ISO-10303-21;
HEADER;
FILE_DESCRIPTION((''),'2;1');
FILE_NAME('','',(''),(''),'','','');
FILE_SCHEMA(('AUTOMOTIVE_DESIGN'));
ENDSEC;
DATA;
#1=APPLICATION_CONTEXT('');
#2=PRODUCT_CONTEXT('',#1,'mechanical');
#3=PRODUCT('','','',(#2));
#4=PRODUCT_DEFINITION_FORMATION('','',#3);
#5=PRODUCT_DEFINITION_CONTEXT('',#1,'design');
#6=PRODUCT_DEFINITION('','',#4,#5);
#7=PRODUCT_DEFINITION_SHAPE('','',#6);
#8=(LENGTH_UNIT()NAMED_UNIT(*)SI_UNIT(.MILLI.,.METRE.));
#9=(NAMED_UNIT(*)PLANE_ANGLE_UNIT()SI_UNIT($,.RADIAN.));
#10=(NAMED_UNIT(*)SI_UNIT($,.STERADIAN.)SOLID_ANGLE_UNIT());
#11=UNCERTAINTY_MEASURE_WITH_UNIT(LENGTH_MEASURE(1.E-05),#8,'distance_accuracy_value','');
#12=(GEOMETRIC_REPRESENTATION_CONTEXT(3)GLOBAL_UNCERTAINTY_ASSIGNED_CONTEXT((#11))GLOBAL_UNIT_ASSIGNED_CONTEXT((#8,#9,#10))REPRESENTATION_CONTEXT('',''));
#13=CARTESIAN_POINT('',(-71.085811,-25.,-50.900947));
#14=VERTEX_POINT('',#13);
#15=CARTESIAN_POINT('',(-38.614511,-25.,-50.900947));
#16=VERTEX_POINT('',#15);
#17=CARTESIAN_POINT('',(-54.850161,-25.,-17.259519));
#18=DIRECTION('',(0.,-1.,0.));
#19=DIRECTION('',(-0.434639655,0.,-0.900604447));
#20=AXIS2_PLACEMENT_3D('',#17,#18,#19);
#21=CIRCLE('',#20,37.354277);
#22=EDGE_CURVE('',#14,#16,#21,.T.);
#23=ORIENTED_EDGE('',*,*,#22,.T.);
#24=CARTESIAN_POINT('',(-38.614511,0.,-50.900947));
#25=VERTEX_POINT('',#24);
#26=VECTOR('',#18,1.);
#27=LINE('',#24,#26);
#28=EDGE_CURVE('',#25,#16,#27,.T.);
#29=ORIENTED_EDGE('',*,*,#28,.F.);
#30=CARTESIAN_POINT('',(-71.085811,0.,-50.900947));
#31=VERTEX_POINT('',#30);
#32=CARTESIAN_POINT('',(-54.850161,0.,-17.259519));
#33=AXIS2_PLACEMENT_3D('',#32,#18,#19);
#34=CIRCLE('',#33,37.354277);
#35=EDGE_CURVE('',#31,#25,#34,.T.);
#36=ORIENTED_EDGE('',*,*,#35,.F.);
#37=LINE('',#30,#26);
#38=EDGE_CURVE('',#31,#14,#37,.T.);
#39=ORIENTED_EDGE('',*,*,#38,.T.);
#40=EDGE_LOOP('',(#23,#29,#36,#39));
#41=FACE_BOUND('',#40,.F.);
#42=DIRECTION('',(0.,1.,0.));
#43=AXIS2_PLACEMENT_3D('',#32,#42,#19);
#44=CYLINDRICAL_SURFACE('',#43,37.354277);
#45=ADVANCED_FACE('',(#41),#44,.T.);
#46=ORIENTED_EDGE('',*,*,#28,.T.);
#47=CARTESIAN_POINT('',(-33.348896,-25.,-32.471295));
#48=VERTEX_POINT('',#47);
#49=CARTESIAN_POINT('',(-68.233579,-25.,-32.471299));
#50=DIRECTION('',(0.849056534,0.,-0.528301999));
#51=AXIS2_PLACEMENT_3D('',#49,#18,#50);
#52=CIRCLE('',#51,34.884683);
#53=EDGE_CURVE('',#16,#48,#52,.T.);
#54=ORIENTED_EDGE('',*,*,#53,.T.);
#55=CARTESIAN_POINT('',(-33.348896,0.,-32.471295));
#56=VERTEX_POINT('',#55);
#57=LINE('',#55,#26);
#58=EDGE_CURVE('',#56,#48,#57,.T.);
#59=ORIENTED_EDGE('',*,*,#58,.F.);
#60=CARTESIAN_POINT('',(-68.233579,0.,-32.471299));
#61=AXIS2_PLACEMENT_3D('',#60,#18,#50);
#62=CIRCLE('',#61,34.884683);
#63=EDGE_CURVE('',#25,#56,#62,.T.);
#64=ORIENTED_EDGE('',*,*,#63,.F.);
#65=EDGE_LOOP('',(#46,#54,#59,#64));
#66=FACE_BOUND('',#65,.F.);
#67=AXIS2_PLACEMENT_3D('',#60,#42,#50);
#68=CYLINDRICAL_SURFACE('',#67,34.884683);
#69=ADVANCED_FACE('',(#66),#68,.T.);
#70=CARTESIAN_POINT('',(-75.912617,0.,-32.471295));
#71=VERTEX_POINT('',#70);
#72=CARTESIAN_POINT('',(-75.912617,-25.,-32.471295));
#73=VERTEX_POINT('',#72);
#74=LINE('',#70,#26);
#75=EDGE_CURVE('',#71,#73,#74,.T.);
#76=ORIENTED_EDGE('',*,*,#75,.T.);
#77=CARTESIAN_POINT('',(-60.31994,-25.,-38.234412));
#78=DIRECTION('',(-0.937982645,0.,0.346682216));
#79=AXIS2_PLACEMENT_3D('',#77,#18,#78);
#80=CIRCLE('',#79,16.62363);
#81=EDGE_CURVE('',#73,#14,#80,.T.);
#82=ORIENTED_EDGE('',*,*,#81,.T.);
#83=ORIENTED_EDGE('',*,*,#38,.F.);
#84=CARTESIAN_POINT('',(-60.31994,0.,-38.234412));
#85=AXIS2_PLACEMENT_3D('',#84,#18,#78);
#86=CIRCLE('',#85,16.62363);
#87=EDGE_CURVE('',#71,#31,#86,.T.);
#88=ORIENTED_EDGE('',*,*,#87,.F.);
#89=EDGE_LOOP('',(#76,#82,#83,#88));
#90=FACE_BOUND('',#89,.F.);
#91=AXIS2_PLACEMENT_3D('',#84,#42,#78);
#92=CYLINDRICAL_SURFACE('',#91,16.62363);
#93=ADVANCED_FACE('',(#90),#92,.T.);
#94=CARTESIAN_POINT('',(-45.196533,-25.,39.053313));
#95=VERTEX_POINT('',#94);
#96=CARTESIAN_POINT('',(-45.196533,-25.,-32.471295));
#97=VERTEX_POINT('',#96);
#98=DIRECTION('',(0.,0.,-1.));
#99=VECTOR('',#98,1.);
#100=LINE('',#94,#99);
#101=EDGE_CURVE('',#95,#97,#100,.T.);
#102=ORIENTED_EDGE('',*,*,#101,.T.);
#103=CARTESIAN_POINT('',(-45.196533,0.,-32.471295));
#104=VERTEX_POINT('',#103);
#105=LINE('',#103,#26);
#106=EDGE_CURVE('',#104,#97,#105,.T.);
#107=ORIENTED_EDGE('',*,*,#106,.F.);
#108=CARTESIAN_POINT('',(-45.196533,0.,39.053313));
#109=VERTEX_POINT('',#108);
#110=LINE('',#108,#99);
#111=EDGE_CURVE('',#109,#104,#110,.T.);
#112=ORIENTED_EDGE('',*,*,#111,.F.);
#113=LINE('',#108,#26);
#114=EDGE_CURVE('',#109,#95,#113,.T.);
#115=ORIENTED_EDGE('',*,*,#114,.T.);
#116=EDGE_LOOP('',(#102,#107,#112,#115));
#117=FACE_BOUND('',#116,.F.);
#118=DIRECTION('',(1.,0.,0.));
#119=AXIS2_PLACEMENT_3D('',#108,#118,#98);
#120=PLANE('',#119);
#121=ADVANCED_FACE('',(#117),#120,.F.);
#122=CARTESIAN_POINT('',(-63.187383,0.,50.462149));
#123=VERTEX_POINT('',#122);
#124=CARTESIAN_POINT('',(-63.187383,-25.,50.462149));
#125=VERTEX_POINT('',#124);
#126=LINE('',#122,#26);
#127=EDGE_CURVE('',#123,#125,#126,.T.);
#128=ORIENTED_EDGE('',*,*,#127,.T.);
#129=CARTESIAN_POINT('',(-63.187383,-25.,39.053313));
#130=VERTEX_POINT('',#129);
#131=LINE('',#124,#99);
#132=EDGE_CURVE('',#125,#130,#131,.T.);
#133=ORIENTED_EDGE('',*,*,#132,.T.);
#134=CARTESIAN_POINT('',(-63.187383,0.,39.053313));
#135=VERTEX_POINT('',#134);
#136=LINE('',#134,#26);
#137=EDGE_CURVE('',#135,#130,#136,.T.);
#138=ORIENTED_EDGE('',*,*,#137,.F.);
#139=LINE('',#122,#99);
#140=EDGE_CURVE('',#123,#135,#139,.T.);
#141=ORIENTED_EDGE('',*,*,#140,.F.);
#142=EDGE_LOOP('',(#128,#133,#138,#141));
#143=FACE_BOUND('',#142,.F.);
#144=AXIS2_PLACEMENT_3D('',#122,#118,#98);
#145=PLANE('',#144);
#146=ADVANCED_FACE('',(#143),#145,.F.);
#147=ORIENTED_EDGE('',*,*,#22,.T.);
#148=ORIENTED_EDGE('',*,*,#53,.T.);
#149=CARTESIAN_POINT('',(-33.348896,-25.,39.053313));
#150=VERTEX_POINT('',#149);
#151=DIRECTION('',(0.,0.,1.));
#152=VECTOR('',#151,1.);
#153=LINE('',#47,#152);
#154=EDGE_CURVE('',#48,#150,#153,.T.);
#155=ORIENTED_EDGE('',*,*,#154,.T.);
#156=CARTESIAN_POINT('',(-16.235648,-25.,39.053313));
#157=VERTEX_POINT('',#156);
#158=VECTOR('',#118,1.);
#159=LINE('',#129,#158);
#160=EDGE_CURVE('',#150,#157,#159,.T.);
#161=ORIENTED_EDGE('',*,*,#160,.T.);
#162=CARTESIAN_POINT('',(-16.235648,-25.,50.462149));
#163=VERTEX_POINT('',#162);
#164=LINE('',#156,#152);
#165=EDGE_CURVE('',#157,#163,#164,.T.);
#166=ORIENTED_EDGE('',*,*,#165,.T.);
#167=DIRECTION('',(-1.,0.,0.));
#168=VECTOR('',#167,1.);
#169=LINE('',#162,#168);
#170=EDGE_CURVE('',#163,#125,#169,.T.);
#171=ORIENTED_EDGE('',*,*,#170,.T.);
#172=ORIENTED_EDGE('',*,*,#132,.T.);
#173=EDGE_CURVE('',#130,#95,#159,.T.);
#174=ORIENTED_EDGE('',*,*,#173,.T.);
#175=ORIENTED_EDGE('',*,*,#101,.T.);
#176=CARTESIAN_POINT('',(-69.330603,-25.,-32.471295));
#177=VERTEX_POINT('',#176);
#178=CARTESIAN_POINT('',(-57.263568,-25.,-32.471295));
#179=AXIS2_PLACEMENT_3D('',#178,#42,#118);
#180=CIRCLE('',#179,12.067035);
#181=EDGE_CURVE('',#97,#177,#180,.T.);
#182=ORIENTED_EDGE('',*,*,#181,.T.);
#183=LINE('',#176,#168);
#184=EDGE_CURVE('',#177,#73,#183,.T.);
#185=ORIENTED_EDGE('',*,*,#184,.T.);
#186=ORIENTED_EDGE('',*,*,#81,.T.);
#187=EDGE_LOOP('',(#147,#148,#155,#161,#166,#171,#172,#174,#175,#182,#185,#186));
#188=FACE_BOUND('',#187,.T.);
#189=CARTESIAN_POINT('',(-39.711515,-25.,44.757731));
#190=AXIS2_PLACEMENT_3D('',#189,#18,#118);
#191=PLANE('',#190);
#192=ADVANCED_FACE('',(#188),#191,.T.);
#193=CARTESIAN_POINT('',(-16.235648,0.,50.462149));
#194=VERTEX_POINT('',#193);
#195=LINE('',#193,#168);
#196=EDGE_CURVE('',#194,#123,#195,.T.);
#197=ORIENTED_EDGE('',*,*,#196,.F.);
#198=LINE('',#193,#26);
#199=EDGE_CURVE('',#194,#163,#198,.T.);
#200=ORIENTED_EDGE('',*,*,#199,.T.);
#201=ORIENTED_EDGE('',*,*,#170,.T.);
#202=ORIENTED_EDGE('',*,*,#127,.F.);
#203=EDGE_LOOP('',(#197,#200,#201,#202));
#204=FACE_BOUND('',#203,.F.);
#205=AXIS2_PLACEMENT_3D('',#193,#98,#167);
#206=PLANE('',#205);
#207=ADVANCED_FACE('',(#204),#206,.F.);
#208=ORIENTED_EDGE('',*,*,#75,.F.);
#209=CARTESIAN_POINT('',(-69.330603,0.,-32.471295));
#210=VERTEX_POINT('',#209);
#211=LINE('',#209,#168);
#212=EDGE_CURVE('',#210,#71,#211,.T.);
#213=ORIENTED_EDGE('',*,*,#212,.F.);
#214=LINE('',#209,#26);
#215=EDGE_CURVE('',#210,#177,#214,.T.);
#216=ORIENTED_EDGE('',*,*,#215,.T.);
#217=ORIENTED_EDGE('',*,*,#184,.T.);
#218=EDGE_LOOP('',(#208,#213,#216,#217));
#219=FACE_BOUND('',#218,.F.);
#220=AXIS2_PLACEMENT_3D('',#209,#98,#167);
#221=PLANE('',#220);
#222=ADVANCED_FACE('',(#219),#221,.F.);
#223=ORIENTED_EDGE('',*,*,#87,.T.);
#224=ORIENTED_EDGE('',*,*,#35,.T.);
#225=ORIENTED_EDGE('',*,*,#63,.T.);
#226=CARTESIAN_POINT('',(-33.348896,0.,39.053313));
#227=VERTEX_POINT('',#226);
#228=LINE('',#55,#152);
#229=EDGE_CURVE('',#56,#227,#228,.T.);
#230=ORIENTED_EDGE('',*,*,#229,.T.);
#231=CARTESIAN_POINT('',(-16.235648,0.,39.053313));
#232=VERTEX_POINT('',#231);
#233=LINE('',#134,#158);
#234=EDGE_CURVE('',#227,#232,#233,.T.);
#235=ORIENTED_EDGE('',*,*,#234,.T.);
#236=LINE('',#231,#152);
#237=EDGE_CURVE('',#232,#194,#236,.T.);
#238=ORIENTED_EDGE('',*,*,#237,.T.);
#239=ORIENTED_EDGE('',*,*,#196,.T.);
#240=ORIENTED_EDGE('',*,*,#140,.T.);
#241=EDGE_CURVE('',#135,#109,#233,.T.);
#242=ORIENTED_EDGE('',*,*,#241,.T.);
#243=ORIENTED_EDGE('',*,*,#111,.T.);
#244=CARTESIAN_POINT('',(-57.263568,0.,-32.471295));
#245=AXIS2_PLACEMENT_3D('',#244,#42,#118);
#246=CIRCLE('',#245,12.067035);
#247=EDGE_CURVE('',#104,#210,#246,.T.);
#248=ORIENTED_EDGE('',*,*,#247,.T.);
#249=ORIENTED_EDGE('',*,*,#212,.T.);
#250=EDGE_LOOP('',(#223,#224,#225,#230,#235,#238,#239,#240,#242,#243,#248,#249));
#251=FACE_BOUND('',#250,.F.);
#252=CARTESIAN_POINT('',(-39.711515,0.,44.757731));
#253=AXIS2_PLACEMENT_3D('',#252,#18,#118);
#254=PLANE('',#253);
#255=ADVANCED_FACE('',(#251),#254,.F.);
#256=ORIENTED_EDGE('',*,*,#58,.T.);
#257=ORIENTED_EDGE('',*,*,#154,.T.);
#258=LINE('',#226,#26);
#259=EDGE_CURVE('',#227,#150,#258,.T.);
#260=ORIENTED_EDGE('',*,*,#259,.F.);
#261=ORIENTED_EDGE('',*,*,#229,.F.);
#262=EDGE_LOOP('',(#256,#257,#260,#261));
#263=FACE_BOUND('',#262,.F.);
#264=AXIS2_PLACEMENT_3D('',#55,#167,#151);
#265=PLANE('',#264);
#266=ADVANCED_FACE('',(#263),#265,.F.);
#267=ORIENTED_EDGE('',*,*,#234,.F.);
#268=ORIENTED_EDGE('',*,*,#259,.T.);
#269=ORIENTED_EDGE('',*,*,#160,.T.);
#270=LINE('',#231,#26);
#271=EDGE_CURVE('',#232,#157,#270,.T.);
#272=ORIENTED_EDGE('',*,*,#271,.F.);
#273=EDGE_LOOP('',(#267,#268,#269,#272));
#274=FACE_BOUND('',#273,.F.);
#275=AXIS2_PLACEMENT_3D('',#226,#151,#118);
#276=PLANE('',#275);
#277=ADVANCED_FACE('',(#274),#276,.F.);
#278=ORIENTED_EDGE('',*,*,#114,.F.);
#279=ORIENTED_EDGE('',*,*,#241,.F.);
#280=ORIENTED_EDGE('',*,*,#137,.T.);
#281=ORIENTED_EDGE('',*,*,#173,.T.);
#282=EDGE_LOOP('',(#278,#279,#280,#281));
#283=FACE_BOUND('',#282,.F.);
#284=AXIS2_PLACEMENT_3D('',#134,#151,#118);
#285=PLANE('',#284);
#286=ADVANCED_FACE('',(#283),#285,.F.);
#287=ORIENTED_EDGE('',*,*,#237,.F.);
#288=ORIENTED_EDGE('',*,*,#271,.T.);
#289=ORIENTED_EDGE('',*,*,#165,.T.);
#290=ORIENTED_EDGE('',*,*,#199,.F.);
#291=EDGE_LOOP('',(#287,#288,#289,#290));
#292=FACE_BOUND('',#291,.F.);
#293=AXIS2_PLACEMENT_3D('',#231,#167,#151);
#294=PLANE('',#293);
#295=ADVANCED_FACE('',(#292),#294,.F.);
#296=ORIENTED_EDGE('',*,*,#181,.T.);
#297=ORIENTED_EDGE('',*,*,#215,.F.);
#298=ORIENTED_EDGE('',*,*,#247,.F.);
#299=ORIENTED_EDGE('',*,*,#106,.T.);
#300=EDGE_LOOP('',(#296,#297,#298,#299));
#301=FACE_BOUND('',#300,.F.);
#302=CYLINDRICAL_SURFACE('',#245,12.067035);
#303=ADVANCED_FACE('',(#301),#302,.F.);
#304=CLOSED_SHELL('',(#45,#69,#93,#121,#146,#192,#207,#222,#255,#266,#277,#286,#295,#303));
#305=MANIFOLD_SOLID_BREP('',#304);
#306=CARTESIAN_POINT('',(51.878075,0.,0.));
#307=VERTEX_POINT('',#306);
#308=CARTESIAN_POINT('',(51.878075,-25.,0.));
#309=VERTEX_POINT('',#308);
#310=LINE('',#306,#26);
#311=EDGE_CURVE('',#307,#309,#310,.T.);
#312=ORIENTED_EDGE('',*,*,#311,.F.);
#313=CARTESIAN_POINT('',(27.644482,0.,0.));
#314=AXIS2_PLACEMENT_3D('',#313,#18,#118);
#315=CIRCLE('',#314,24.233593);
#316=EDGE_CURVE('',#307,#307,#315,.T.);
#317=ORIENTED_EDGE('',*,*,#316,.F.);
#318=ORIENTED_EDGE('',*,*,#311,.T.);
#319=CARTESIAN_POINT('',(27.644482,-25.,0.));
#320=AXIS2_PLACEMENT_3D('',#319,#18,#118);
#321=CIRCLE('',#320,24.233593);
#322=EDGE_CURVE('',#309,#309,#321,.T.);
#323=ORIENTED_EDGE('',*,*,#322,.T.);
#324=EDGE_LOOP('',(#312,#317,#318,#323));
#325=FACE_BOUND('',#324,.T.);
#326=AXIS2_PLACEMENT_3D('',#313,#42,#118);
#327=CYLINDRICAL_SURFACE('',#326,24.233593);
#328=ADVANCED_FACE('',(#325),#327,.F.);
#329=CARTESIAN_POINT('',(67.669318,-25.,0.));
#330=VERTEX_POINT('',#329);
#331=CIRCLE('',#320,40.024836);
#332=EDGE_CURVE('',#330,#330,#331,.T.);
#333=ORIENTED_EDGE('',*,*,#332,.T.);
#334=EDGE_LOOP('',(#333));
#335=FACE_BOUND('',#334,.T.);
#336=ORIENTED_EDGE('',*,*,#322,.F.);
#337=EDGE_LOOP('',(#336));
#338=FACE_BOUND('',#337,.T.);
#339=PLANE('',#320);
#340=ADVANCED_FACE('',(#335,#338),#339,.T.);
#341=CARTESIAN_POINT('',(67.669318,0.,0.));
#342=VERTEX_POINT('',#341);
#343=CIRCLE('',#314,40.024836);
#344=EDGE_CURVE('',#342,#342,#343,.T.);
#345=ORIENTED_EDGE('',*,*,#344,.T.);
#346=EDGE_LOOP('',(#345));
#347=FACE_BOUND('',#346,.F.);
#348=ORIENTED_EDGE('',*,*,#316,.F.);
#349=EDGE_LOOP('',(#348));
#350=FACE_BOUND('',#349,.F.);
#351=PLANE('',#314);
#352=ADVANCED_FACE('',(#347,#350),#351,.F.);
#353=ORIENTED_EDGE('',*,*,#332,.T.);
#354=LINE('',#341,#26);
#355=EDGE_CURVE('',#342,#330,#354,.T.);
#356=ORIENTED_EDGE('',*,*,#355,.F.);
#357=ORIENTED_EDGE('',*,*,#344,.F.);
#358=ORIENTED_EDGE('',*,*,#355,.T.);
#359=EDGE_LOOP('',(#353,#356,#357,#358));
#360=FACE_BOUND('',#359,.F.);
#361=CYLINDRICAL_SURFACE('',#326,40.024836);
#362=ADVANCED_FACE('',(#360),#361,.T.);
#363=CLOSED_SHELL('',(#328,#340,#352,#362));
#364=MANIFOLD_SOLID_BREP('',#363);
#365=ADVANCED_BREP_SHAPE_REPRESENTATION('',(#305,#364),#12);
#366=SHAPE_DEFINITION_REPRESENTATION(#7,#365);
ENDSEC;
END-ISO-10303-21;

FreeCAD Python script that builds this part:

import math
import FreeCAD as App
import Part
import Sketcher
from FreeCAD import Vector

doc = App.newDocument("Part")
body = doc.addObject("PartDesign::Body", "Body")
body.AllowCompound = True

# Sketch on XZ plane
sketch1 = body.newObject("Sketcher::SketchObject", "Sketch")
sketch1.AttachmentSupport = (doc.getObject("XZ_Plane"), [""])
sketch1.MapMode = "FlatFace"
sketch1.addGeometry(Part.LineSegment(Vector(-16, 50, 0), Vector(-63, 50, 0)), False)
sketch1.addGeometry(Part.LineSegment(Vector(-63, 50, 0), Vector(-63, 39, 0)), False)
sketch1.addGeometry(Part.LineSegment(Vector(-63, 39, 0), Vector(-45, 39, 0)), False)
sketch1.addGeometry(Part.LineSegment(Vector(-45, 39, 0), Vector(-45, -32, 0)), False)
sketch1.addGeometry(Part.ArcOfCircle(Part.Circle(Vector(-57, -32, 0), Vector(0, 0, 1), 12), math.radians(180), math.radians(360)), False)
sketch1.addGeometry(Part.LineSegment(Vector(-69, -32, 0), Vector(-76, -32, 0)), False)
sketch1.addGeometry(Part.ArcOfCircle(Part.Circle(Vector(-60, -38, 0), Vector(0, 0, 1), 17), math.radians(160), math.radians(230)), False)
sketch1.addGeometry(Part.ArcOfCircle(Part.Circle(Vector(-55, -17, 0), Vector(0, 0, 1), 37), math.radians(-116), math.radians(-64)), False)
sketch1.addGeometry(Part.ArcOfCircle(Part.Circle(Vector(-68, -32, 0), Vector(0, 0, 1), 35), math.radians(-32), math.radians(0)), False)
sketch1.addGeometry(Part.LineSegment(Vector(-33, -32, 0), Vector(-33, 39, 0)), False)
sketch1.addGeometry(Part.LineSegment(Vector(-33, 39, 0), Vector(-16, 39, 0)), False)
sketch1.addGeometry(Part.LineSegment(Vector(-16, 39, 0), Vector(-16, 50, 0)), False)
sketch1.addGeometry(Part.Circle(Vector(28, 0, 0), Vector(0, 0, 1), 40), False)
sketch1.addGeometry(Part.Circle(Vector(28, 0, 0), Vector(0, 0, 1), 24), False)
sketch1.addConstraint(Sketcher.Constraint("Coincident", 0, 2, 1, 1))
sketch1.addConstraint(Sketcher.Constraint("Coincident", 1, 2, 2, 1))
sketch1.addConstraint(Sketcher.Constraint("Coincident", 2, 2, 3, 1))
sketch1.addConstraint(Sketcher.Constraint("Tangent", 3, 2, 4, 2))
sketch1.addConstraint(Sketcher.Constraint("Coincident", 4, 1, 5, 1))
sketch1.addConstraint(Sketcher.Constraint("Coincident", 5, 2, 6, 1))
sketch1.addConstraint(Sketcher.Constraint("Coincident", 6, 2, 7, 1))
sketch1.addConstraint(Sketcher.Constraint("Coincident", 7, 2, 8, 1))
sketch1.addConstraint(Sketcher.Constraint("Tangent", 8, 2, 9, 1))
sketch1.addConstraint(Sketcher.Constraint("Coincident", 9, 2, 10, 1))
sketch1.addConstraint(Sketcher.Constraint("Coincident", 10, 2, 11, 1))
sketch1.addConstraint(Sketcher.Constraint("Coincident", 11, 2, 0, 1))
sketch1.addConstraint(Sketcher.Constraint("Horizontal", 0))
sketch1.addConstraint(Sketcher.Constraint("Vertical", 1))
sketch1.addConstraint(Sketcher.Constraint("Horizontal", 2))
sketch1.addConstraint(Sketcher.Constraint("Vertical", 3))
sketch1.addConstraint(Sketcher.Constraint("Horizontal", 5))
sketch1.addConstraint(Sketcher.Constraint("Vertical", 9))
sketch1.addConstraint(Sketcher.Constraint("Horizontal", 10))
sketch1.addConstraint(Sketcher.Constraint("Vertical", 11))
sketch1.addConstraint(Sketcher.Constraint("Coincident", 13, 3, 12, 3))
sketch1.addConstraint(Sketcher.Constraint("PointOnObject", 12, 3, -1))
sketch1.addConstraint(Sketcher.Constraint("Horizontal", 3, 2, 4, 1))
sketch1.addConstraint(Sketcher.Constraint("Horizontal", 6, 2, 7, 2))
sketch1.addConstraint(Sketcher.Constraint("Horizontal", 5, 2, 8, 2))
sketch1.addConstraint(Sketcher.Constraint("Horizontal", 2, 2, 9, 2))
sketch1.addConstraint(Sketcher.Constraint("Diameter", 12, 80.049672))
sketch1.addConstraint(Sketcher.Constraint("Radius", 6, 16.62363))
sketch1.addConstraint(Sketcher.Constraint("Diameter", 13, 48.467186))
sketch1.addConstraint(Sketcher.Constraint("Radius", 4, 12.067035))
sketch1.addConstraint(Sketcher.Constraint("Radius", 7, 37.354277))
sketch1.addConstraint(Sketcher.Constraint("Radius", 8, 34.884683))
sketch1.addConstraint(Sketcher.Constraint("DistanceX", 2, 1, 2, 2, 17.99085))
sketch1.addConstraint(Sketcher.Constraint("DistanceX", 10, 1, 10, 2, 17.113248))
sketch1.addConstraint(Sketcher.Constraint("DistanceY", 3, 2, 3, 1, 71.524608))
sketch1.addConstraint(Sketcher.Constraint("DistanceY", 8, 3, -1, 1, 32.471299))
sketch1.addConstraint(Sketcher.Constraint("DistanceX", 6, 2, 7, 2, 32.4713))
sketch1.addConstraint(Sketcher.Constraint("DistanceX", 0, 2, 0, 1, 46.951735))
sketch1.addConstraint(Sketcher.Constraint("DistanceX", 5, 2, 5, 1, 6.582014))
sketch1.addConstraint(Sketcher.Constraint("DistanceY", 1, 2, 1, 1, 11.408836))
sketch1.addConstraint(Sketcher.Constraint("DistanceX", 6, 3, -1, 1, 60.31994))
sketch1.addConstraint(Sketcher.Constraint("DistanceY", 6, 3, -1, 1, 38.234412))
sketch1.addConstraint(Sketcher.Constraint("DistanceX", -1, 1, 12, 3, 27.644482))
pad1 = body.newObject("PartDesign::Pad", "Pad")
pad1.Profile = sketch1
pad1.Length = 25

doc.recompute()
